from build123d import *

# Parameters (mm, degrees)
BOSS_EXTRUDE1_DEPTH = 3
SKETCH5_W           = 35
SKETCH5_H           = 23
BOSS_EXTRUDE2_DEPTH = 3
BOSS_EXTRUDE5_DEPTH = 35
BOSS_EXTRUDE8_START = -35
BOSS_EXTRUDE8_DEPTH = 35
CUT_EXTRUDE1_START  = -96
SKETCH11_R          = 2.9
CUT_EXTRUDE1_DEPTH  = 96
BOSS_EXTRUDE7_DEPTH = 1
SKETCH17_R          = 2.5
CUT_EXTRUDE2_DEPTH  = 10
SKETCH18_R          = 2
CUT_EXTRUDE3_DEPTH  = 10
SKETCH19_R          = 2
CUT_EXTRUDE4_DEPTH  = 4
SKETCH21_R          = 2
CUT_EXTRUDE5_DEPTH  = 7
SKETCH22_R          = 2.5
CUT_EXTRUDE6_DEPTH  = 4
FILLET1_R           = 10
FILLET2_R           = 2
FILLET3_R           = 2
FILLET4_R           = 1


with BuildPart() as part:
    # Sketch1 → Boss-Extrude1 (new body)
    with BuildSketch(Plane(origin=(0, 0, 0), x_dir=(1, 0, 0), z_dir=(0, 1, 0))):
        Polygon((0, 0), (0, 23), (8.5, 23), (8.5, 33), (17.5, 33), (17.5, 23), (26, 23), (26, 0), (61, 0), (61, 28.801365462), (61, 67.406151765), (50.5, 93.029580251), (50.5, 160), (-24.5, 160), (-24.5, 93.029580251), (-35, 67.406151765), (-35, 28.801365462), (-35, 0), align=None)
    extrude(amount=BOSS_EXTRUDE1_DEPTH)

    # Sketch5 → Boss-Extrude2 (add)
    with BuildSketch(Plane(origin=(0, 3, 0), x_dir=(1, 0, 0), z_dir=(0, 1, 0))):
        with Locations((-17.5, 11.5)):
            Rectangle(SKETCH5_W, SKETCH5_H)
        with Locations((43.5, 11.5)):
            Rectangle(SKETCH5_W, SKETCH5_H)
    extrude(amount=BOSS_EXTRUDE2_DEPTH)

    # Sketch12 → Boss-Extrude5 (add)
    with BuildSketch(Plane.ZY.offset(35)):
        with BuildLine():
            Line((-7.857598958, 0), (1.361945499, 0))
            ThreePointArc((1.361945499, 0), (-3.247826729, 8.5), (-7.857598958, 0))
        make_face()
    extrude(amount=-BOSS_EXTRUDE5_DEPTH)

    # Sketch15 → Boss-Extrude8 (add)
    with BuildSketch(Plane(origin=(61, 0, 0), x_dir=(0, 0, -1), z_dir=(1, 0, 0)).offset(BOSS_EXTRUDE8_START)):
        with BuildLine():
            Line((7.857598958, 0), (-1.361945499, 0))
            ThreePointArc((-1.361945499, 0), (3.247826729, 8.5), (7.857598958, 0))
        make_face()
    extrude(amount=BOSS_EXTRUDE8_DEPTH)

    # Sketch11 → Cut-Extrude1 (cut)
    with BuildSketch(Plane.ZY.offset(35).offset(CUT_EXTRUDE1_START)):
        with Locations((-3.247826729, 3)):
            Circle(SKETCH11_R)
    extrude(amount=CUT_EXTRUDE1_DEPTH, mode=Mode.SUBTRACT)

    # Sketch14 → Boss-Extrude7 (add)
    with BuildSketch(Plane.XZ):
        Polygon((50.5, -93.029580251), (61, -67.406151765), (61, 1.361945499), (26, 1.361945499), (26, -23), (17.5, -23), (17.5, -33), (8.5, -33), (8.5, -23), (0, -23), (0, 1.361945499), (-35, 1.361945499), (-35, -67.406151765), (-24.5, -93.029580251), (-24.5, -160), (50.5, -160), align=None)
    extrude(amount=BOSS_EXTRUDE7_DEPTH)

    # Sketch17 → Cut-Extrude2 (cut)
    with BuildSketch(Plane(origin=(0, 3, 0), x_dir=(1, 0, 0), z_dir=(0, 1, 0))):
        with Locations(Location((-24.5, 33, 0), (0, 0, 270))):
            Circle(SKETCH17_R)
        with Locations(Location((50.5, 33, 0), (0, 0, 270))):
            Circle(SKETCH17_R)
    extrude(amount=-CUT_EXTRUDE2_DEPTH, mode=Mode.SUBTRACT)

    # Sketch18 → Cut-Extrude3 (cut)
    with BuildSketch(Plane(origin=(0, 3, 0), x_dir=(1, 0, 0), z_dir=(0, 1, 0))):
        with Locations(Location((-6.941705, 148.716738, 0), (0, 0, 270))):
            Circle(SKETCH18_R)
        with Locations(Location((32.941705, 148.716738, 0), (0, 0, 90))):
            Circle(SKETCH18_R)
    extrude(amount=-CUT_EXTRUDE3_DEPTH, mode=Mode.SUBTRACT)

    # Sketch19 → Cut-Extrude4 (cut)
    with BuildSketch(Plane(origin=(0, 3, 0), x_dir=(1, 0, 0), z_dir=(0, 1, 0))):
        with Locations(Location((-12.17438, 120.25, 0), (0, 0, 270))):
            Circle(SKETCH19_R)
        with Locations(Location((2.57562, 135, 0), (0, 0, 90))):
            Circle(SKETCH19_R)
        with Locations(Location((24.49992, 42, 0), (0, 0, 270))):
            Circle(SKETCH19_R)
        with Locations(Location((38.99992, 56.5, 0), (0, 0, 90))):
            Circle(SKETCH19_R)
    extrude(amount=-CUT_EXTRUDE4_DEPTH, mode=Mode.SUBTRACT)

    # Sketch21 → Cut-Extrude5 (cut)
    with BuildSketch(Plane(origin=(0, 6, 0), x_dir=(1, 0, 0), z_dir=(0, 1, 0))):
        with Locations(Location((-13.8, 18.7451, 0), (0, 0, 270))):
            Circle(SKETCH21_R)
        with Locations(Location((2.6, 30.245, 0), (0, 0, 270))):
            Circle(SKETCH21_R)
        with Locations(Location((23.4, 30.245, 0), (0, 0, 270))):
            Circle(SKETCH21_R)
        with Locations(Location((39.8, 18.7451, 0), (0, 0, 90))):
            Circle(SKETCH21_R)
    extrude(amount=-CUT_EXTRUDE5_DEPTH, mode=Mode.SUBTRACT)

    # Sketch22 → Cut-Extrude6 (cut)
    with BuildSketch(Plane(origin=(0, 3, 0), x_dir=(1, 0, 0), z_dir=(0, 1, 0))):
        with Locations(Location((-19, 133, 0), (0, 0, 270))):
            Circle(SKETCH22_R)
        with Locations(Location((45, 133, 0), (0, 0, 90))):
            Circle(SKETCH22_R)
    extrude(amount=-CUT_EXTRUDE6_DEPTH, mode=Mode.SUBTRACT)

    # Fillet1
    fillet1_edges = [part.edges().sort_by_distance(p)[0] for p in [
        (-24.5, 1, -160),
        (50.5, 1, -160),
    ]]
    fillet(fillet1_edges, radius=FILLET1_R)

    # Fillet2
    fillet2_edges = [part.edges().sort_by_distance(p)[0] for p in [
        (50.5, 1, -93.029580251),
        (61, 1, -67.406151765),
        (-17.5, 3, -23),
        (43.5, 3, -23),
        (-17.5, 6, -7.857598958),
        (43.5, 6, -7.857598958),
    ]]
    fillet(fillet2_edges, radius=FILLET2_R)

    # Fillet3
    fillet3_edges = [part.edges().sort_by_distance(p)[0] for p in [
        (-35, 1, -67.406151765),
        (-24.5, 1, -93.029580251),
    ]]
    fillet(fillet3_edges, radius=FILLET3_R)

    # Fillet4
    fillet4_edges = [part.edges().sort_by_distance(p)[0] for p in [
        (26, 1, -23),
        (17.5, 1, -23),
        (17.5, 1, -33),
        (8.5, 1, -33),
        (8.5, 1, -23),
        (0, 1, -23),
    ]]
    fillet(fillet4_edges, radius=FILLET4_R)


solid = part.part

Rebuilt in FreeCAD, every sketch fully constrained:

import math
import FreeCAD as App
import Part
import Sketcher

V = App.Vector
Q = App.Units.Quantity


def edges_at(feature, points):
    """Names of the edges that pass closest to the given points."""
    edges = feature.Shape.Edges
    near = lambda p: min(range(len(edges)), key=lambda i: edges[i].distToShape(Part.Vertex(*p))[0])
    return sorted({f"Edge{near(p) + 1}" for p in points})


def add_polygon(sketch, points):
    """Adds a closed chain of lines whose ends are joined by coincident constraints."""
    first, n = sketch.GeometryCount, len(points)
    for a, b in zip(points, points[1:] + points[:1]):
        sketch.addGeometry(Part.LineSegment(App.Vector(*a, 0), App.Vector(*b, 0)), False)
    for i in range(n):
        sketch.addConstraint(Sketcher.Constraint("Coincident", first + i, 2, first + (i + 1) % n, 1))

doc = App.newDocument("Part")
params = doc.addObject("Spreadsheet::Sheet", "Params")
for row, (alias, value) in enumerate([
    ("sketch1_width", "9 mm"),
    ("sketch1_width2", "35 mm"),
    ("sketch1_width3", "75 mm"),
    ("sketch1_height", "23 mm"),
    ("sketch1_height2", "10 mm"),
    ("pad1_length", "3 mm"),
    ("sketch2_width", "35 mm"),
    ("sketch2_height", "23 mm"),
    ("pad2_length", "3 mm"),
    ("sketch3_radius", "5.5 mm"),
    ("pad3_length", "35 mm"),
    ("sketch4_radius", "5.5 mm"),
    ("pad4_length", "35 mm"),
    ("sketch5_diameter", "5.8 mm"),
    ("pocket1_length", "96 mm"),
    ("sketch6_width", "35 mm"),
    ("sketch6_width2", "9 mm"),
    ("sketch6_width3", "75 mm"),
    ("sketch6_height", "10 mm"),
    ("sketch6_width4", "8.5 mm"),
    ("pad5_length", "1 mm"),
    ("sketch7_diameter", "5 mm"),
    ("pocket2_length", "10 mm"),
    ("sketch8_diameter", "4 mm"),
    ("pocket3_length", "10 mm"),
    ("sketch9_diameter", "4 mm"),
    ("pocket4_length", "4 mm"),
    ("sketch10_diameter", "4 mm"),
    ("pocket5_length", "7 mm"),
    ("sketch11_diameter", "5 mm"),
    ("pocket6_length", "4 mm"),
    ("fillet_radius", "10 mm"),
    ("fillet2_radius", "2 mm"),
    ("fillet3_radius", "2 mm"),
    ("fillet4_radius", "1 mm"),
], start=1):
    params.set(f"A{row}", alias)
    params.set(f"B{row}", "=" + value)
    params.setAlias(f"B{row}", alias)

body = doc.addObject("PartDesign::Body", "Body")

sketch1 = doc.addObject("Sketcher::SketchObject", "Sketch")
body.addObject(sketch1)
sketch1.AttachmentSupport = (doc.XZ_Plane, [""])
sketch1.MapMode = "FlatFace"
add_polygon(sketch1, [(0, 0), (0, -23), (8, -23), (8, -33), (18, -33), (18, -23), (26, -23), (26, 0), (61, 0), (61, -67), (50, -93), (50, -160), (-24, -160), (-24, -93), (-35, -67), (-35, 0)])
sketch1.addConstraint([
    Sketcher.Constraint("Vertical", 0),
    Sketcher.Constraint("Horizontal", 1),
    Sketcher.Constraint("Vertical", 2),
    Sketcher.Constraint("Horizontal", 3),
    Sketcher.Constraint("Vertical", 4),
    Sketcher.Constraint("Horizontal", 5),
    Sketcher.Constraint("Vertical", 6),
    Sketcher.Constraint("Horizontal", 7),
    Sketcher.Constraint("Vertical", 8),
    Sketcher.Constraint("Vertical", 10),
    Sketcher.Constraint("Horizontal", 11),
    Sketcher.Constraint("Vertical", 12),
    Sketcher.Constraint("Vertical", 14),
    Sketcher.Constraint("Horizontal", 15),
    Sketcher.Constraint("Coincident", 15, 2, -1, 1),
    Sketcher.Constraint("PointOnObject", 6, 2, -1),
    Sketcher.Constraint("Horizontal", 1, 2, 4, 2),
    Sketcher.Constraint("Horizontal", 9, 2, 12, 2),
    Sketcher.Constraint("Horizontal", 8, 2, 13, 2),
    Sketcher.Constraint("Equal", 1, 5),
    Sketcher.Constraint("Equal", 7, 15),
    Sketcher.Constraint("Equal", 9, 13),
    Sketcher.Constraint("DistanceX", 3, 1, 3, 2, Q("9 mm")),
    Sketcher.Constraint("DistanceX", 7, 1, 7, 2, Q("35 mm")),
    Sketcher.Constraint("DistanceX", 11, 2, 11, 1, Q("75 mm")),
    Sketcher.Constraint("DistanceY", 0, 2, 0, 1, Q("23 mm")),
    Sketcher.Constraint("DistanceY", 2, 2, 2, 1, Q("10 mm")),
    Sketcher.Constraint("DistanceX", 1, 1, 1, 2, Q("8.5 mm")),
    Sketcher.Constraint("DistanceY", 10, 2, -1, 1, Q("160 mm")),
    Sketcher.Constraint("DistanceY", 8, 2, 8, 1, Q("67.406152 mm")),
    Sketcher.Constraint("DistanceY", 10, 2, 10, 1, Q("66.97042 mm")),
])
sketch1.setExpression("Constraints[38]", "Params.sketch1_width")
sketch1.setExpression("Constraints[39]", "Params.sketch1_width2")
sketch1.setExpression("Constraints[40]", "Params.sketch1_width3")
sketch1.setExpression("Constraints[41]", "Params.sketch1_height")
sketch1.setExpression("Constraints[42]", "Params.sketch1_height2")
pad1 = doc.addObject("PartDesign::Pad", "Pad")
body.addObject(pad1)
pad1.Profile = sketch1
pad1.setExpression("Length", "Params.pad1_length")
pad1.Reversed = True

sketch2 = doc.addObject("Sketcher::SketchObject", "Sketch001")
body.addObject(sketch2)
sketch2.AttachmentSupport = (doc.XZ_Plane, [""])
sketch2.MapMode = "FlatFace"
sketch2.AttachmentOffset = App.Placement(V(0, 0, -3), App.Rotation())
add_polygon(sketch2, [(-35, -23), (-35, 0), (0, 0), (0, -23)])
add_polygon(sketch2, [(26, -23), (26, 0), (61, 0), (61, -23)])
sketch2.addConstraint([
    Sketcher.Constraint("Vertical", 0),
    Sketcher.Constraint("Horizontal", 1),
    Sketcher.Constraint("Vertical", 2),
    Sketcher.Constraint("Horizontal", 3),
    Sketcher.Constraint("Vertical", 4),
    Sketcher.Constraint("Horizontal", 5),
    Sketcher.Constraint("Vertical", 6),
    Sketcher.Constraint("Horizontal", 7),
    Sketcher.Constraint("Coincident", 1, 2, -1, 1),
    Sketcher.Constraint("PointOnObject", 4, 2, -1),
    Sketcher.Constraint("Horizontal", 3, 2, 6, 2),
    Sketcher.Constraint("Equal", 3, 5),
    Sketcher.Constraint("DistanceX", 1, 1, 1, 2, Q("35 mm")),
    Sketcher.Constraint("DistanceY", 0, 1, 0, 2, Q("23 mm")),
    Sketcher.Constraint("DistanceX", -1, 1, 4, 2, Q("26 mm")),
])
sketch2.setExpression("Constraints[20]", "Params.sketch2_width")
sketch2.setExpression("Constraints[21]", "Params.sketch2_height")
pad2 = doc.addObject("PartDesign::Pad", "Pad001")
body.addObject(pad2)
pad2.Profile = sketch2
pad2.setExpression("Length", "Params.pad2_length")
pad2.Reversed = True

sketch3 = doc.addObject("Sketcher::SketchObject", "Sketch002")
body.addObject(sketch3)
sketch3.AttachmentSupport = (doc.YZ_Plane, [""])
sketch3.MapMode = "FlatFace"
sketch3.AttachmentOffset = App.Placement(V(0, 0, -35), App.Rotation())
sketch3.addGeometry([
    Part.LineSegment(V(0, -8, 0), V(0, 1, 0)),
    Part.ArcOfCircle(Part.Circle(V(3, -3, 0), V(0, 0, 1), 6), math.radians(-123), math.radians(123)),
], False)
sketch3.addConstraint([
    Sketcher.Constraint("Coincident", 0, 1, 1, 1),
    Sketcher.Constraint("Coincident", 1, 2, 0, 2),
    Sketcher.Constraint("Vertical", 0),
    Sketcher.Constraint("PointOnObject", 0, 1, -2),
    Sketcher.Constraint("Radius", 1, Q("5.5 mm")),
    Sketcher.Constraint("DistanceX", -1, 1, 1, 3, Q("3 mm")),
    Sketcher.Constraint("DistanceY", 0, 1, -1, 1, Q("7.857599 mm")),
])
sketch3.setExpression("Constraints[4]", "Params.sketch3_radius")
pad3 = doc.addObject("PartDesign::Pad", "Pad002")
body.addObject(pad3)
pad3.Profile = sketch3
pad3.setExpression("Length", "Params.pad3_length")

sketch4 = doc.addObject("Sketcher::SketchObject", "Sketch003")
body.addObject(sketch4)
sketch4.AttachmentSupport = (doc.YZ_Plane, [""])
sketch4.MapMode = "FlatFace"
sketch4.AttachmentOffset = App.Placement(V(0, 0, 26), App.Rotation())
sketch4.addGeometry([
    Part.LineSegment(V(0, 1, 0), V(0, -8, 0)),
    Part.ArcOfCircle(Part.Circle(V(3, -3, 0), V(0, 0, 1), 6), math.radians(-123), math.radians(123)),
], False)
sketch4.addConstraint([
    Sketcher.Constraint("Coincident", 0, 1, 1, 2),
    Sketcher.Constraint("Coincident", 1, 1, 0, 2),
    Sketcher.Constraint("Vertical", 0),
    Sketcher.Constraint("PointOnObject", 0, 1, -2),
    Sketcher.Constraint("Radius", 1, Q("5.5 mm")),
    Sketcher.Constraint("DistanceX", -1, 1, 1, 3, Q("3 mm")),
    Sketcher.Constraint("DistanceY", 1, 1, -1, 1, Q("7.857599 mm")),
])
sketch4.setExpression("Constraints[4]", "Params.sketch4_radius")
pad4 = doc.addObject("PartDesign::Pad", "Pad003")
body.addObject(pad4)
pad4.Profile = sketch4
pad4.setExpression("Length", "Params.pad4_length")

sketch5 = doc.addObject("Sketcher::SketchObject", "Sketch004")
body.addObject(sketch5)
sketch5.AttachmentSupport = (doc.YZ_Plane, [""])
sketch5.MapMode = "FlatFace"
sketch5.AttachmentOffset = App.Placement(V(0, 0, 61), App.Rotation())
sketch5.addGeometry(Part.Circle(V(3, -3.2, 0), V(0, 0, 1), 2.9), False)
sketch5.addConstraint([
    Sketcher.Constraint("Diameter", 0, Q("5.8 mm")),
    Sketcher.Constraint("DistanceX", -1, 1, 0, 3, Q("3 mm")),
    Sketcher.Constraint("DistanceY", 0, 3, -1, 1, Q("3.247827 mm")),
])
sketch5.setExpression("Constraints[0]", "Params.sketch5_diameter")
pocket1 = doc.addObject("PartDesign::Pocket", "Pocket")
body.addObject(pocket1)
pocket1.Profile = sketch5
pocket1.setExpression("Length", "Params.pocket1_length")

sketch6 = doc.addObject("Sketcher::SketchObject", "Sketch005")
body.addObject(sketch6)
sketch6.AttachmentSupport = (doc.XZ_Plane, [""])
sketch6.MapMode = "FlatFace"
add_polygon(sketch6, [(50, -93), (61, -67), (61, 1), (26, 1), (26, -23), (18, -23), (18, -33), (8, -33), (8, -23), (0, -23), (0, 1), (-35, 1), (-35, -67), (-24, -93), (-24, -160), (50, -160)])
sketch6.addConstraint([
    Sketcher.Constraint("Vertical", 1),
    Sketcher.Constraint("Horizontal", 2),
    Sketcher.Constraint("Vertical", 3),
    Sketcher.Constraint("Horizontal", 4),
    Sketcher.Constraint("Vertical", 5),
    Sketcher.Constraint("Horizontal", 6),
    Sketcher.Constraint("Vertical", 7),
    Sketcher.Constraint("Horizontal", 8),
    Sketcher.Constraint("Vertical", 9),
    Sketcher.Constraint("Horizontal", 10),
    Sketcher.Constraint("Vertical", 11),
    Sketcher.Constraint("Vertical", 13),
    Sketcher.Constraint("Horizontal", 14),
    Sketcher.Constraint("Vertical", 15),
    Sketcher.Constraint("PointOnObject", 8, 2, -2),
    Sketcher.Constraint("Horizontal", 4, 2, 7, 2),
    Sketcher.Constraint("Horizontal", 2, 2, 9, 2),
    Sketcher.Constraint("Horizontal", 0, 2, 11, 2),
    Sketcher.Constraint("Horizontal", 12, 2, 15, 2),
    Sketcher.Constraint("Equal", 4, 8),
    Sketcher.Constraint("Equal", 2, 10),
    Sketcher.Constraint("Equal", 0, 12),
    Sketcher.Constraint("DistanceX", 2, 2, 2, 1, Q("35 mm")),
    Sketcher.Constraint("DistanceX", 6, 2, 6, 1, Q("9 mm")),
    Sketcher.Constraint("DistanceX", 14, 1, 14, 2, Q("75 mm")),
    Sketcher.Constraint("DistanceY", 5, 2, 5, 1, Q("10 mm")),
    Sketcher.Constraint("DistanceX", 4, 2, 4, 1, Q("8.5 mm")),
    Sketcher.Constraint("DistanceY", 3, 2, -1, 1, Q("23 mm")),
    Sketcher.Constraint("DistanceY", 13, 2, -1, 1, Q("160 mm")),
    Sketcher.Constraint("DistanceY", 13, 2, 13, 1, Q("66.97042 mm")),
    Sketcher.Constraint("DistanceY", 1, 1, 1, 2, Q("68.768097 mm")),
    Sketcher.Constraint("DistanceY", 3, 2, 3, 1, Q("24.361945 mm")),
])
sketch6.setExpression("Constraints[38]", "Params.sketch6_width")
sketch6.setExpression("Constraints[39]", "Params.sketch6_width2")
sketch6.setExpression("Constraints[40]", "Params.sketch6_width3")
sketch6.setExpression("Constraints[41]", "Params.sketch6_height")
sketch6.setExpression("Constraints[42]", "Params.sketch6_width4")
pad5 = doc.addObject("PartDesign::Pad", "Pad004")
body.addObject(pad5)
pad5.Profile = sketch6
pad5.setExpression("Length", "Params.pad5_length")

sketch7 = doc.addObject("Sketcher::SketchObject", "Sketch006")
body.addObject(sketch7)
sketch7.AttachmentSupport = (doc.XZ_Plane, [""])
sketch7.MapMode = "FlatFace"
sketch7.AttachmentOffset = App.Placement(V(0, 0, -3), App.Rotation())
sketch7.addGeometry([
    Part.Circle(V(-24.5, -33, 0), V(0, 0, 1), 2.5),
    Part.Circle(V(50.5, -33, 0), V(0, 0, 1), 2.5),
], False)
sketch7.addConstraint([
    Sketcher.Constraint("Equal", 0, 1),
    Sketcher.Constraint("Horizontal", 0, 3, 1, 3),
    Sketcher.Constraint("Diameter", 0, Q("5 mm")),
    Sketcher.Constraint("DistanceY", 0, 3, -1, 1, Q("33 mm")),
    Sketcher.Constraint("DistanceX", 0, 3, 1, 3, Q("75 mm")),
    Sketcher.Constraint("DistanceX", 0, 3, -1, 1, Q("24.5 mm")),
])
sketch7.setExpression("Constraints[2]", "Params.sketch7_diameter")
pocket2 = doc.addObject("PartDesign::Pocket", "Pocket001")
body.addObject(pocket2)
pocket2.Profile = sketch7
pocket2.setExpression("Length", "Params.pocket2_length")
pocket2.Reversed = True

sketch8 = doc.addObject("Sketcher::SketchObject", "Sketch007")
body.addObject(sketch8)
sketch8.AttachmentSupport = (doc.XZ_Plane, [""])
sketch8.MapMode = "FlatFace"
sketch8.AttachmentOffset = App.Placement(V(0, 0, -3), App.Rotation())
sketch8.addGeometry([
    Part.Circle(V(-6.9, -148.7, 0), V(0, 0, 1), 2),
    Part.Circle(V(32.9, -148.7, 0), V(0, 0, 1), 2),
], False)
sketch8.addConstraint([
    Sketcher.Constraint("Equal", 0, 1),
    Sketcher.Constraint("Horizontal", 0, 3, 1, 3),
    Sketcher.Constraint("Diameter", 0, Q("4 mm")),
    Sketcher.Constraint("DistanceY", 0, 3, -1, 1, Q("148.716738 mm")),
    Sketcher.Constraint("DistanceX", 0, 3, 1, 3, Q("39.88341 mm")),
    Sketcher.Constraint("DistanceX", 0, 3, -1, 1, Q("6.941705 mm")),
])
sketch8.setExpression("Constraints[2]", "Params.sketch8_diameter")
pocket3 = doc.addObject("PartDesign::Pocket", "Pocket002")
body.addObject(pocket3)
pocket3.Profile = sketch8
pocket3.setExpression("Length", "Params.pocket3_length")
pocket3.Reversed = True

sketch9 = doc.addObject("Sketcher::SketchObject", "Sketch008")
body.addObject(sketch9)
sketch9.AttachmentSupport = (doc.XZ_Plane, [""])
sketch9.MapMode = "FlatFace"
sketch9.AttachmentOffset = App.Placement(V(0, 0, -3), App.Rotation())
sketch9.addGeometry([
    Part.Circle(V(-12.2, -120.2, 0), V(0, 0, 1), 2),
    Part.Circle(V(2.6, -135, 0), V(0, 0, 1), 2),
    Part.Circle(V(24.5, -42, 0), V(0, 0, 1), 2),
    Part.Circle(V(39, -56.5, 0), V(0, 0, 1), 2),
], False)
sketch9.addConstraint([
    Sketcher.Constraint("Equal", 0, 1),
    Sketcher.Constraint("Equal", 1, 2),
    Sketcher.Constraint("Equal", 2, 3),
    Sketcher.Constraint("Diameter", 0, Q("4 mm")),
    Sketcher.Constraint("DistanceY", 1, 3, -1, 1, Q("135 mm")),
    Sketcher.Constraint("DistanceY", 2, 3, -1, 1, Q("42 mm")),
    Sketcher.Constraint("DistanceY", 3, 3, -1, 1, Q("56.5 mm")),
    Sketcher.Constraint("DistanceX", 2, 3, 3, 3, Q("14.5 mm")),
    Sketcher.Constraint("DistanceY", 0, 3, -1, 1, Q("120.25 mm")),
    Sketcher.Constraint("DistanceX", 0, 3, 1, 3, Q("14.75 mm")),
    Sketcher.Constraint("DistanceX", 0, 3, 2, 3, Q("36.6743 mm")),
    Sketcher.Constraint("DistanceX", 0, 3, -1, 1, Q("12.17438 mm")),
])
sketch9.setExpression("Constraints[3]", "Params.sketch9_diameter")
pocket4 = doc.addObject("PartDesign::Pocket", "Pocket003")
body.addObject(pocket4)
pocket4.Profile = sketch9
pocket4.setExpression("Length", "Params.pocket4_length")
pocket4.Reversed = True

sketch10 = doc.addObject("Sketcher::SketchObject", "Sketch009")
body.addObject(sketch10)
sketch10.AttachmentSupport = (doc.XZ_Plane, [""])
sketch10.MapMode = "FlatFace"
sketch10.AttachmentOffset = App.Placement(V(0, 0, -6), App.Rotation())
sketch10.addGeometry([
    Part.Circle(V(-13.8, -18.7, 0), V(0, 0, 1), 2),
    Part.Circle(V(2.6, -30.2, 0), V(0, 0, 1), 2),
    Part.Circle(V(23.4, -30.2, 0), V(0, 0, 1), 2),
    Part.Circle(V(39.8, -18.7, 0), V(0, 0, 1), 2),
], False)
sketch10.addConstraint([
    Sketcher.Constraint("Equal", 0, 1),
    Sketcher.Constraint("Equal", 1, 2),
    Sketcher.Constraint("Equal", 2, 3),
    Sketcher.Constraint("Horizontal", 1, 3, 2, 3),
    Sketcher.Constraint("Horizontal", 0, 3, 3, 3),
    Sketcher.Constraint("Diameter", 0, Q("4 mm")),
    Sketcher.Constraint("DistanceX", 0, 3, -1, 1, Q("13.8 mm")),
    Sketcher.Constraint("DistanceX", -1, 1, 1, 3, Q("2.6 mm")),
    Sketcher.Constraint("DistanceX", -1, 1, 2, 3, Q("23.4 mm")),
    Sketcher.Constraint("DistanceX", -1, 1, 3, 3, Q("39.8 mm")),
    Sketcher.Constraint("DistanceY", 1, 3, -1, 1, Q("30.245 mm")),
    Sketcher.Constraint("DistanceY", 0, 3, -1, 1, Q("18.7451 mm")),
])
sketch10.setExpression("Constraints[5]", "Params.sketch10_diameter")
pocket5 = doc.addObject("PartDesign::Pocket", "Pocket004")
body.addObject(pocket5)
pocket5.Profile = sketch10
pocket5.setExpression("Length", "Params.pocket5_length")
pocket5.Reversed = True

sketch11 = doc.addObject("Sketcher::SketchObject", "Sketch010")
body.addObject(sketch11)
sketch11.AttachmentSupport = (doc.XZ_Plane, [""])
sketch11.MapMode = "FlatFace"
sketch11.AttachmentOffset = App.Placement(V(0, 0, -3), App.Rotation())
sketch11.addGeometry([
    Part.Circle(V(-19, -133, 0), V(0, 0, 1), 2.5),
    Part.Circle(V(45, -133, 0), V(0, 0, 1), 2.5),
], False)
sketch11.addConstraint([
    Sketcher.Constraint("Equal", 0, 1),
    Sketcher.Constraint("Horizontal", 0, 3, 1, 3),
    Sketcher.Constraint("Diameter", 0, Q("5 mm")),
    Sketcher.Constraint("DistanceX", 0, 3, -1, 1, Q("19 mm")),
    Sketcher.Constraint("DistanceY", 0, 3, -1, 1, Q("133 mm")),
    Sketcher.Constraint("DistanceX", -1, 1, 1, 3, Q("45 mm")),
])
sketch11.setExpression("Constraints[2]", "Params.sketch11_diameter")
pocket6 = doc.addObject("PartDesign::Pocket", "Pocket005")
body.addObject(pocket6)
pocket6.Profile = sketch11
pocket6.setExpression("Length", "Params.pocket6_length")
pocket6.Reversed = True
doc.recompute()

fillet = doc.addObject("PartDesign::Fillet", "Fillet")
body.addObject(fillet)
fillet.Base = (pocket6, edges_at(pocket6, [(-24.5, 1, -160), (50.5, 1, -160)]))
fillet.setExpression("Radius", "Params.fillet_radius")
doc.recompute()

fillet2 = doc.addObject("PartDesign::Fillet", "Fillet001")
body.addObject(fillet2)
fillet2.Base = (fillet, edges_at(fillet, [
    (50.5, 1, -93.03),
    (61, 1, -67.406),
    (-17.5, 3, -23),
    (43.5, 3, -23),
    (-17.5, 6, -7.858),
    (43.5, 6, -7.858),
]))
fillet2.setExpression("Radius", "Params.fillet2_radius")
doc.recompute()

fillet3 = doc.addObject("PartDesign::Fillet", "Fillet002")
body.addObject(fillet3)
fillet3.Base = (fillet2, edges_at(fillet2, [(-35, 1, -67.406), (-24.5, 1, -93.03)]))
fillet3.setExpression("Radius", "Params.fillet3_radius")
doc.recompute()

fillet4 = doc.addObject("PartDesign::Fillet", "Fillet003")
body.addObject(fillet4)
fillet4.Base = (fillet3, edges_at(fillet3, [
    (26, 1, -23),
    (17.5, 1, -23),
    (17.5, 1, -33),
    (8.5, 1, -33),
    (8.5, 1, -23),
    (0, 1, -23),
]))
fillet4.setExpression("Radius", "Params.fillet4_radius")

doc.recompute()
